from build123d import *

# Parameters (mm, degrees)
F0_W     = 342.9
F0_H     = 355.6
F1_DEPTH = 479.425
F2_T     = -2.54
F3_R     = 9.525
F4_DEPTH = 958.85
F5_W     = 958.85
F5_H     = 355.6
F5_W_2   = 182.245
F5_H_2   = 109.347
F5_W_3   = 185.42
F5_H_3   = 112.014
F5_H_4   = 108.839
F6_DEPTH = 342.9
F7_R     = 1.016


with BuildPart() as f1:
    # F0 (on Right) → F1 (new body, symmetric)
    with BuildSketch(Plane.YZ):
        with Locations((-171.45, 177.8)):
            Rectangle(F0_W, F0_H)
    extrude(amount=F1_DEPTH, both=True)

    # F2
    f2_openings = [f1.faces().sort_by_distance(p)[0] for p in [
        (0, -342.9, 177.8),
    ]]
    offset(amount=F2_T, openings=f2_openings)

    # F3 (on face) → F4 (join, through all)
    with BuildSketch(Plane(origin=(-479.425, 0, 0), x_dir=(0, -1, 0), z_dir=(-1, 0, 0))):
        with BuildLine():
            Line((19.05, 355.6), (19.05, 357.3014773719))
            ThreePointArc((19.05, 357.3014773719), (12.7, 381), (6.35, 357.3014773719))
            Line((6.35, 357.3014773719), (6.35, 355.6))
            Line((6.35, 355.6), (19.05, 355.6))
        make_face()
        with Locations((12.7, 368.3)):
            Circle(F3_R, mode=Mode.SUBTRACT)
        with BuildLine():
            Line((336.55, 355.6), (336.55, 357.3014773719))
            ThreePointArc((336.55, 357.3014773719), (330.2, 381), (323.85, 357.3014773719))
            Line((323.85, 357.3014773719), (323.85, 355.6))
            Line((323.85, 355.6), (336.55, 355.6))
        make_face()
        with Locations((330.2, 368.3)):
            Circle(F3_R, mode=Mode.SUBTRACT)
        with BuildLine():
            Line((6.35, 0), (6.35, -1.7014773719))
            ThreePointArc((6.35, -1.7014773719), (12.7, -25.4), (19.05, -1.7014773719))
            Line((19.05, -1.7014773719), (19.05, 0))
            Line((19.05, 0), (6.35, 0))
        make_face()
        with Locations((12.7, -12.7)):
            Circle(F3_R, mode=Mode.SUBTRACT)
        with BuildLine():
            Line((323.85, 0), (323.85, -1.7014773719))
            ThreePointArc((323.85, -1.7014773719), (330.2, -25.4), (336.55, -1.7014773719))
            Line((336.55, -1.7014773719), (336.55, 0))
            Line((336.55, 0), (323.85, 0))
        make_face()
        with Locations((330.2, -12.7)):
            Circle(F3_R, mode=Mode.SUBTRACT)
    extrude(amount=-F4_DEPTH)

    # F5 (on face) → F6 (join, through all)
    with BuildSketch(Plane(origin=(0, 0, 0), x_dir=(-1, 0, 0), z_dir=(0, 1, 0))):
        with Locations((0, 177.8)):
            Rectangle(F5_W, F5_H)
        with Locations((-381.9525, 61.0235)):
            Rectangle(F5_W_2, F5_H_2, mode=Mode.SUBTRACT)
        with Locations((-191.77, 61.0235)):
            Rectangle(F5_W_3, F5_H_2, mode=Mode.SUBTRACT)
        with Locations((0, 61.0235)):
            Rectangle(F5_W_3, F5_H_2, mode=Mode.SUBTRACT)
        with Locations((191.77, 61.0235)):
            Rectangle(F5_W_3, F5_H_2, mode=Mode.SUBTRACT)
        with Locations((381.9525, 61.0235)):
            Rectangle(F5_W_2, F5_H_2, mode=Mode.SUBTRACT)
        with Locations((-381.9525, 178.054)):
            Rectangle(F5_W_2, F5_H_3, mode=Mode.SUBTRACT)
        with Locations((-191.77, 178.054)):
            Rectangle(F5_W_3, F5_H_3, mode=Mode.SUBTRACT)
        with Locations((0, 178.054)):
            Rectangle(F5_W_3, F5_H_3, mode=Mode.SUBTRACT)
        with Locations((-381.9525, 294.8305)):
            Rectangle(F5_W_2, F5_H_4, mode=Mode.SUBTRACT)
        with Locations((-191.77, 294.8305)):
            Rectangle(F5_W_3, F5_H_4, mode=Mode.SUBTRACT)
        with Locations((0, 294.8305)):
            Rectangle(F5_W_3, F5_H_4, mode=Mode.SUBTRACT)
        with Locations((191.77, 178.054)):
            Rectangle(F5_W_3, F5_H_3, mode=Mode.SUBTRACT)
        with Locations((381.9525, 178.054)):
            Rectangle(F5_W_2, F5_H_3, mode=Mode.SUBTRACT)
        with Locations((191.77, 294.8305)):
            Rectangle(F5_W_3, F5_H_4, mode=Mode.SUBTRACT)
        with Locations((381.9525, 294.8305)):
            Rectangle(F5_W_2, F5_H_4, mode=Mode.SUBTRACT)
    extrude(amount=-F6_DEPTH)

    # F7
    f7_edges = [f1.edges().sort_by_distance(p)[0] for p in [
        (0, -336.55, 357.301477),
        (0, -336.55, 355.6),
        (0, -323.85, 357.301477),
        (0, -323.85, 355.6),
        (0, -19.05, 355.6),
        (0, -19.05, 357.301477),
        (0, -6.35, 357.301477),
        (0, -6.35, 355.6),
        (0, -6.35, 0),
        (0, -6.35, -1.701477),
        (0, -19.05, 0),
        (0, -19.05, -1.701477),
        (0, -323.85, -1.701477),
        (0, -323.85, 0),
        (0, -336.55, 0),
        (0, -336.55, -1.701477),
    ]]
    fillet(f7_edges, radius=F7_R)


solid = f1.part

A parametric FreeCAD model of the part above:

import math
import FreeCAD as App
import Part
import Sketcher

V = App.Vector
Q = App.Units.Quantity


def edges_at(feature, points):
    """Names of the edges that pass closest to the given points."""
    edges = feature.Shape.Edges
    near = lambda p: min(range(len(edges)), key=lambda i: edges[i].distToShape(Part.Vertex(*p))[0])
    return sorted({f"Edge{near(p) + 1}" for p in points})


def faces_at(feature, points):
    """Names of the faces that lie closest to the given points."""
    faces = feature.Shape.Faces
    near = lambda p: min(range(len(faces)), key=lambda i: faces[i].distToShape(Part.Vertex(*p))[0])
    return sorted({f"Face{near(p) + 1}" for p in points})


def add_polygon(sketch, points):
    """Adds a closed chain of lines whose ends are joined by coincident constraints."""
    first, n = sketch.GeometryCount, len(points)
    for a, b in zip(points, points[1:] + points[:1]):
        sketch.addGeometry(Part.LineSegment(App.Vector(*a, 0), App.Vector(*b, 0)), False)
    for i in range(n):
        sketch.addConstraint(Sketcher.Constraint("Coincident", first + i, 2, first + (i + 1) % n, 1))

doc = App.newDocument("Part")
body = doc.addObject("PartDesign::Body", "Body")

# Sketch on YZ plane
sketch1 = body.newObject("Sketcher::SketchObject", "Sketch")
sketch1.AttachmentSupport = (doc.getObject("YZ_Plane"), [""])
sketch1.MapMode = "FlatFace"
add_polygon(sketch1, [(-343, 356), (-343, 0), (0, 0), (0, 356)])  # lines 0-3
sketch1.addConstraint([
    Sketcher.Constraint("Vertical", 0),
    Sketcher.Constraint("Horizontal", 1),
    Sketcher.Constraint("Vertical", 2),
    Sketcher.Constraint("Horizontal", 3),
    Sketcher.Constraint("Coincident", 1, 2, -1, 1),
    Sketcher.Constraint("DistanceY", 0, 2, 0, 1, Q("14 in")),
    Sketcher.Constraint("DistanceX", 1, 1, 1, 2, Q("13.5 in")),
])
pad1 = body.newObject("PartDesign::Pad", "Pad")
pad1.Profile = sketch1
pad1.Length = Q("37.75 in")
pad1.Midplane = True
doc.recompute()

thickness = body.newObject("PartDesign::Thickness", "Thickness")
thickness.Base = (pad1, faces_at(pad1, [(0, -342.9, 177.8)]))
thickness.Value = Q("0.1 in")
thickness.Reversed = True
thickness.Join = "Arc"

# Sketch on YZ plane
sketch2 = body.newObject("Sketcher::SketchObject", "Sketch001")
sketch2.AttachmentSupport = (doc.getObject("YZ_Plane"), [""])
sketch2.MapMode = "FlatFace"
sketch2.AttachmentOffset = App.Placement(V(0, 0, -18.875 * 25.4), App.Rotation())
sketch2.addGeometry([
    Part.LineSegment(V(-19.1, 355.6, 0), V(-19.1, 357.3, 0)),  # 0
    Part.ArcOfCircle(Part.Circle(V(-12.7, 368.3, 0), V(0, 0, 1), 12.7), math.radians(-60), math.radians(240)),  # 1
    Part.LineSegment(V(-6.3, 357.3, 0), V(-6.3, 355.6, 0)),  # 2
    Part.LineSegment(V(-6.3, 355.6, 0), V(-19.1, 355.6, 0)),  # 3
    Part.Circle(V(-12.7, 368.3, 0), V(0, 0, 1), 9.5),  # 4
    Part.LineSegment(V(-336.6, 355.6, 0), V(-336.6, 357.3, 0)),  # 5
    Part.ArcOfCircle(Part.Circle(V(-330.2, 368.3, 0), V(0, 0, 1), 12.7), math.radians(-60), math.radians(240)),  # 6
    Part.LineSegment(V(-323.9, 357.3, 0), V(-323.9, 355.6, 0)),  # 7
    Part.LineSegment(V(-323.9, 355.6, 0), V(-336.6, 355.6, 0)),  # 8
    Part.Circle(V(-330.2, 368.3, 0), V(0, 0, 1), 9.5),  # 9
    Part.LineSegment(V(-6.3, 0, 0), V(-6.3, -1.7, 0)),  # 10
    Part.ArcOfCircle(Part.Circle(V(-12.7, -12.7, 0), V(0, 0, 1), 12.7), math.radians(120), math.radians(420)),  # 11
    Part.LineSegment(V(-19.1, -1.7, 0), V(-19.1, 0, 0)),  # 12
    Part.LineSegment(V(-19.1, 0, 0), V(-6.3, 0, 0)),  # 13
    Part.Circle(V(-12.7, -12.7, 0), V(0, 0, 1), 9.5),  # 14
    Part.LineSegment(V(-323.9, 0, 0), V(-323.9, -1.7, 0)),  # 15
    Part.ArcOfCircle(Part.Circle(V(-330.2, -12.7, 0), V(0, 0, 1), 12.7), math.radians(120), math.radians(420)),  # 16
    Part.LineSegment(V(-336.6, -1.7, 0), V(-336.6, 0, 0)),  # 17
    Part.LineSegment(V(-336.6, 0, 0), V(-323.9, 0, 0)),  # 18
    Part.Circle(V(-330.2, -12.7, 0), V(0, 0, 1), 9.5),  # 19
], False)
sketch2.addConstraint([
    Sketcher.Constraint("Coincident", 0, 2, 1, 2),
    Sketcher.Constraint("Coincident", 1, 1, 2, 1),
    Sketcher.Constraint("Coincident", 2, 2, 3, 1),
    Sketcher.Constraint("Coincident", 3, 2, 0, 1),
    Sketcher.Constraint("Coincident", 5, 2, 6, 2),
    Sketcher.Constraint("Coincident", 6, 1, 7, 1),
    Sketcher.Constraint("Coincident", 7, 2, 8, 1),
    Sketcher.Constraint("Coincident", 8, 2, 5, 1),
    Sketcher.Constraint("Coincident", 10, 2, 11, 2),
    Sketcher.Constraint("Coincident", 11, 1, 12, 1),
    Sketcher.Constraint("Coincident", 12, 2, 13, 1),
    Sketcher.Constraint("Coincident", 13, 2, 10, 1),
    Sketcher.Constraint("Coincident", 15, 2, 16, 2),
    Sketcher.Constraint("Coincident", 16, 1, 17, 1),
    Sketcher.Constraint("Coincident", 17, 2, 18, 1),
    Sketcher.Constraint("Coincident", 18, 2, 15, 1),
    Sketcher.Constraint("Vertical", 0),
    Sketcher.Constraint("Vertical", 2),
    Sketcher.Constraint("Horizontal", 3),
    Sketcher.Constraint("Vertical", 5),
    Sketcher.Constraint("Vertical", 7),
    Sketcher.Constraint("Horizontal", 8),
    Sketcher.Constraint("Vertical", 10),
    Sketcher.Constraint("Vertical", 12),
    Sketcher.Constraint("Horizontal", 13),
    Sketcher.Constraint("Vertical", 15),
    Sketcher.Constraint("Vertical", 17),
    Sketcher.Constraint("Horizontal", 18),
    Sketcher.Constraint("Coincident", 4, 3, 1, 3),
    Sketcher.Constraint("Coincident", 9, 3, 6, 3),
    Sketcher.Constraint("Coincident", 14, 3, 11, 3),
    Sketcher.Constraint("Coincident", 19, 3, 16, 3),
    Sketcher.Constraint("Equal", 1, 6),
    Sketcher.Constraint("Equal", 4, 9),
    Sketcher.Constraint("Equal", 6, 11),
    Sketcher.Constraint("Equal", 9, 14),
    Sketcher.Constraint("Equal", 11, 16),
    Sketcher.Constraint("Equal", 14, 19),
    Sketcher.Constraint("PointOnObject", 12, 2, -1),
    Sketcher.Constraint("PointOnObject", 17, 2, -1),
    Sketcher.Constraint("Horizontal", 4, 3, 6, 3),
    Sketcher.Constraint("Horizontal", 14, 3, 16, 3),
    Sketcher.Constraint("Horizontal", 0, 2, 1, 1),
    Sketcher.Constraint("Horizontal", 1, 1, 5, 2),
    Sketcher.Constraint("Horizontal", 5, 2, 6, 1),
    Sketcher.Constraint("Horizontal", 3, 2, 7, 2),
    Sketcher.Constraint("Horizontal", 10, 2, 11, 1),
    Sketcher.Constraint("Horizontal", 11, 1, 15, 2),
    Sketcher.Constraint("Horizontal", 15, 2, 16, 1),
    Sketcher.Constraint("Vertical", 4, 3, 11, 3),
    Sketcher.Constraint("Vertical", 9, 3, 16, 3),
    Sketcher.Constraint("Vertical", 2, 2, 10, 2),
    Sketcher.Constraint("Equal", 7, 10),
    Sketcher.Constraint("Radius", 1, Q("0.5 in")),
    Sketcher.Constraint("Diameter", 4, Q("0.75 in")),
    Sketcher.Constraint("DistanceX", 3, 2, 3, 1, Q("0.5 in")),
    Sketcher.Constraint("DistanceX", 6, 3, -1, 1, Q("13 in")),
    Sketcher.Constraint("DistanceY", -1, 1, 2, 2, Q("14 in")),
    Sketcher.Constraint("DistanceY", 11, 3, 1, 3, Q("15 in")),
    Sketcher.Constraint("DistanceX", 6, 1, 0, 2, Q("12 in")),
])
pad2 = body.newObject("PartDesign::Pad", "Pad001")
pad2.Profile = sketch2
pad2.Type = "UpToLast"

# Sketch on XZ plane
sketch3 = body.newObject("Sketcher::SketchObject", "Sketch002")
sketch3.AttachmentSupport = (doc.getObject("XZ_Plane"), [""])
sketch3.MapMode = "FlatFace"
add_polygon(sketch3, [(479, 356), (479, 0), (-479, 0), (-479, 356)])  # lines 0-3
add_polygon(sketch3, [(291, 6), (473, 6), (473, 116), (291, 116)])  # lines 4-7
add_polygon(sketch3, [(99, 6), (284, 6), (284, 116), (99, 116)])  # lines 8-11
add_polygon(sketch3, [(-93, 6), (93, 6), (93, 116), (-93, 116)])  # lines 12-15
add_polygon(sketch3, [(-284, 6), (-99, 6), (-99, 116), (-284, 116)])  # lines 16-19
add_polygon(sketch3, [(-473, 6), (-291, 6), (-291, 116), (-473, 116)])  # lines 20-23
add_polygon(sketch3, [(291, 122), (473, 122), (473, 234), (291, 234)])  # lines 24-27
add_polygon(sketch3, [(99, 122), (284, 122), (284, 234), (99, 234)])  # lines 28-31
add_polygon(sketch3, [(-93, 122), (93, 122), (93, 234), (-93, 234)])  # lines 32-35
add_polygon(sketch3, [(291, 240), (473, 240), (473, 349), (291, 349)])  # lines 36-39
add_polygon(sketch3, [(99, 240), (284, 240), (284, 349), (99, 349)])  # lines 40-43
add_polygon(sketch3, [(-93, 240), (93, 240), (93, 349), (-93, 349)])  # lines 44-47
add_polygon(sketch3, [(-284, 122), (-99, 122), (-99, 234), (-284, 234)])  # lines 48-51
add_polygon(sketch3, [(-473, 122), (-291, 122), (-291, 234), (-473, 234)])  # lines 52-55
add_polygon(sketch3, [(-284, 240), (-99, 240), (-99, 349), (-284, 349)])  # lines 56-59
add_polygon(sketch3, [(-473, 240), (-291, 240), (-291, 349), (-473, 349)])  # lines 60-63
sketch3.addConstraint([
    Sketcher.Constraint("Vertical", 0),
    Sketcher.Constraint("Horizontal", 1),
    Sketcher.Constraint("Vertical", 2),
    Sketcher.Constraint("Horizontal", 3),
    Sketcher.Constraint("Horizontal", 4),
    Sketcher.Constraint("Vertical", 5),
    Sketcher.Constraint("Horizontal", 6),
    Sketcher.Constraint("Vertical", 7),
    Sketcher.Constraint("Horizontal", 8),
    Sketcher.Constraint("Vertical", 9),
    Sketcher.Constraint("Horizontal", 10),
    Sketcher.Constraint("Vertical", 11),
    Sketcher.Constraint("Horizontal", 12),
    Sketcher.Constraint("Vertical", 13),
    Sketcher.Constraint("Horizontal", 14),
    Sketcher.Constraint("Vertical", 15),
    Sketcher.Constraint("Horizontal", 16),
    Sketcher.Constraint("Vertical", 17),
    Sketcher.Constraint("Horizontal", 18),
    Sketcher.Constraint("Vertical", 19),
    Sketcher.Constraint("Horizontal", 20),
    Sketcher.Constraint("Vertical", 21),
    Sketcher.Constraint("Horizontal", 22),
    Sketcher.Constraint("Vertical", 23),
    Sketcher.Constraint("Horizontal", 24),
    Sketcher.Constraint("Vertical", 25),
    Sketcher.Constraint("Horizontal", 26),
    Sketcher.Constraint("Vertical", 27),
    Sketcher.Constraint("Horizontal", 28),
    Sketcher.Constraint("Vertical", 29),
    Sketcher.Constraint("Horizontal", 30),
    Sketcher.Constraint("Vertical", 31),
    Sketcher.Constraint("Horizontal", 32),
    Sketcher.Constraint("Vertical", 33),
    Sketcher.Constraint("Horizontal", 34),
    Sketcher.Constraint("Vertical", 35),
    Sketcher.Constraint("Horizontal", 36),
    Sketcher.Constraint("Vertical", 37),
    Sketcher.Constraint("Horizontal", 38),
    Sketcher.Constraint("Vertical", 39),
    Sketcher.Constraint("Horizontal", 40),
    Sketcher.Constraint("Vertical", 41),
    Sketcher.Constraint("Horizontal", 42),
    Sketcher.Constraint("Vertical", 43),
    Sketcher.Constraint("Horizontal", 44),
    Sketcher.Constraint("Vertical", 45),
    Sketcher.Constraint("Horizontal", 46),
    Sketcher.Constraint("Vertical", 47),
    Sketcher.Constraint("Horizontal", 48),
    Sketcher.Constraint("Vertical", 49),
    Sketcher.Constraint("Horizontal", 50),
    Sketcher.Constraint("Vertical", 51),
    Sketcher.Constraint("Horizontal", 52),
    Sketcher.Constraint("Vertical", 53),
    Sketcher.Constraint("Horizontal", 54),
    Sketcher.Constraint("Vertical", 55),
    Sketcher.Constraint("Horizontal", 56),
    Sketcher.Constraint("Vertical", 57),
    Sketcher.Constraint("Horizontal", 58),
    Sketcher.Constraint("Vertical", 59),
    Sketcher.Constraint("Horizontal", 60),
    Sketcher.Constraint("Vertical", 61),
    Sketcher.Constraint("Horizontal", 62),
    Sketcher.Constraint("Vertical", 63),
    Sketcher.Constraint("Symmetric", 0, 2, 1, 2, -1, 1),
    Sketcher.Constraint("Symmetric", 11, 2, 16, 2, -2),
    Sketcher.Constraint("Symmetric", 9, 2, 18, 2, -2),
    Sketcher.Constraint("Symmetric", 7, 2, 20, 2, -2),
    Sketcher.Constraint("Symmetric", 5, 2, 22, 2, -2),
    Sketcher.Constraint("Symmetric", 31, 2, 48, 2, -2),
    Sketcher.Constraint("Symmetric", 29, 2, 50, 2, -2),
    Sketcher.Constraint("Symmetric", 27, 2, 52, 2, -2),
    Sketcher.Constraint("Symmetric", 25, 2, 54, 2, -2),
    Sketcher.Constraint("Symmetric", 43, 2, 56, 2, -2),
    Sketcher.Constraint("Symmetric", 41, 2, 58, 2, -2),
    Sketcher.Constraint("Symmetric", 39, 2, 60, 2, -2),
    Sketcher.Constraint("Symmetric", 37, 2, 62, 2, -2),
    Sketcher.Constraint("Horizontal", 7, 2, 8, 2),
    Sketcher.Constraint("Horizontal", 6, 2, 9, 2),
    Sketcher.Constraint("Horizontal", 11, 2, 12, 2),
    Sketcher.Constraint("Horizontal", 10, 2, 13, 2),
    Sketcher.Constraint("Horizontal", 27, 2, 28, 2),
    Sketcher.Constraint("Horizontal", 26, 2, 29, 2),
    Sketcher.Constraint("Horizontal", 31, 2, 32, 2),
    Sketcher.Constraint("Horizontal", 30, 2, 33, 2),
    Sketcher.Constraint("Horizontal", 39, 2, 40, 2),
    Sketcher.Constraint("Horizontal", 38, 2, 41, 2),
    Sketcher.Constraint("Horizontal", 43, 2, 44, 2),
    Sketcher.Constraint("Horizontal", 42, 2, 45, 2),
    Sketcher.Constraint("Vertical", 5, 2, 24, 2),
    Sketcher.Constraint("Vertical", 7, 2, 26, 2),
    Sketcher.Constraint("Vertical", 9, 2, 28, 2),
    Sketcher.Constraint("Vertical", 11, 2, 30, 2),
    Sketcher.Constraint("Vertical", 13, 2, 32, 2),
    Sketcher.Constraint("Vertical", 15, 2, 34, 2),
    Sketcher.Constraint("Vertical", 25, 2, 36, 2),
    Sketcher.Constraint("Vertical", 27, 2, 38, 2),
    Sketcher.Constraint("Vertical", 29, 2, 40, 2),
    Sketcher.Constraint("Vertical", 31, 2, 42, 2),
    Sketcher.Constraint("Vertical", 33, 2, 44, 2),
    Sketcher.Constraint("Vertical", 35, 2, 46, 2),
    Sketcher.Constraint("Equal", 10, 12),
    Sketcher.Constraint("DistanceY", 0, 2, 0, 1, Q("14 in")),
    Sketcher.Constraint("DistanceX", 8, 1, 8, 2, Q("7.3 in")),
    Sketcher.Constraint("DistanceX", 1, 2, 1, 1, Q("37.75 in")),
    Sketcher.Constraint("DistanceY", 25, 1, 25, 2, Q("4.41 in")),
    Sketcher.Constraint("DistanceX", -1, 1, 8, 2, Q("11.2 in")),
    Sketcher.Constraint("DistanceX", 4, 1, 4, 2, Q("7.175 in")),
    Sketcher.Constraint("DistanceY", 5, 1, 5, 2, Q("4.305 in")),
    Sketcher.Constraint("DistanceY", 37, 1, 37, 2, Q("4.285 in")),
    Sketcher.Constraint("DistanceY", -1, 1, 4, 2, Q("0.25 in")),
    Sketcher.Constraint("DistanceX", -1, 1, 6, 2, Q("11.45 in")),
    Sketcher.Constraint("DistanceX", -1, 1, 12, 2, Q("3.65 in")),
    Sketcher.Constraint("DistanceY", -1, 1, 37, 2, Q("13.75 in")),
    Sketcher.Constraint("DistanceY", -1, 1, 24, 2, Q("4.805 in")),
])
pad3 = body.newObject("PartDesign::Pad", "Pad002")
pad3.Profile = sketch3
pad3.Length = Q("13.5 in")
doc.recompute()

fillet = body.newObject("PartDesign::Fillet", "Fillet")
fillet.Base = (pad3, edges_at(pad3, [
    (0, -336.55, 357.301),
    (0, -336.55, 355.6),
    (0, -323.85, 357.301),
    (0, -323.85, 355.6),
    (0, -19.05, 355.6),
    (0, -19.05, 357.301),
    (0, -6.35, 357.301),
    (0, -6.35, 355.6),
    (0, -6.35, 0),
    (0, -6.35, -1.701),
    (0, -19.05, 0),
    (0, -19.05, -1.701),
    (0, -323.85, -1.701),
    (0, -323.85, 0),
    (0, -336.55, 0),
    (0, -336.55, -1.701),
]))
fillet.Radius = Q("0.04 in")

doc.recompute()
